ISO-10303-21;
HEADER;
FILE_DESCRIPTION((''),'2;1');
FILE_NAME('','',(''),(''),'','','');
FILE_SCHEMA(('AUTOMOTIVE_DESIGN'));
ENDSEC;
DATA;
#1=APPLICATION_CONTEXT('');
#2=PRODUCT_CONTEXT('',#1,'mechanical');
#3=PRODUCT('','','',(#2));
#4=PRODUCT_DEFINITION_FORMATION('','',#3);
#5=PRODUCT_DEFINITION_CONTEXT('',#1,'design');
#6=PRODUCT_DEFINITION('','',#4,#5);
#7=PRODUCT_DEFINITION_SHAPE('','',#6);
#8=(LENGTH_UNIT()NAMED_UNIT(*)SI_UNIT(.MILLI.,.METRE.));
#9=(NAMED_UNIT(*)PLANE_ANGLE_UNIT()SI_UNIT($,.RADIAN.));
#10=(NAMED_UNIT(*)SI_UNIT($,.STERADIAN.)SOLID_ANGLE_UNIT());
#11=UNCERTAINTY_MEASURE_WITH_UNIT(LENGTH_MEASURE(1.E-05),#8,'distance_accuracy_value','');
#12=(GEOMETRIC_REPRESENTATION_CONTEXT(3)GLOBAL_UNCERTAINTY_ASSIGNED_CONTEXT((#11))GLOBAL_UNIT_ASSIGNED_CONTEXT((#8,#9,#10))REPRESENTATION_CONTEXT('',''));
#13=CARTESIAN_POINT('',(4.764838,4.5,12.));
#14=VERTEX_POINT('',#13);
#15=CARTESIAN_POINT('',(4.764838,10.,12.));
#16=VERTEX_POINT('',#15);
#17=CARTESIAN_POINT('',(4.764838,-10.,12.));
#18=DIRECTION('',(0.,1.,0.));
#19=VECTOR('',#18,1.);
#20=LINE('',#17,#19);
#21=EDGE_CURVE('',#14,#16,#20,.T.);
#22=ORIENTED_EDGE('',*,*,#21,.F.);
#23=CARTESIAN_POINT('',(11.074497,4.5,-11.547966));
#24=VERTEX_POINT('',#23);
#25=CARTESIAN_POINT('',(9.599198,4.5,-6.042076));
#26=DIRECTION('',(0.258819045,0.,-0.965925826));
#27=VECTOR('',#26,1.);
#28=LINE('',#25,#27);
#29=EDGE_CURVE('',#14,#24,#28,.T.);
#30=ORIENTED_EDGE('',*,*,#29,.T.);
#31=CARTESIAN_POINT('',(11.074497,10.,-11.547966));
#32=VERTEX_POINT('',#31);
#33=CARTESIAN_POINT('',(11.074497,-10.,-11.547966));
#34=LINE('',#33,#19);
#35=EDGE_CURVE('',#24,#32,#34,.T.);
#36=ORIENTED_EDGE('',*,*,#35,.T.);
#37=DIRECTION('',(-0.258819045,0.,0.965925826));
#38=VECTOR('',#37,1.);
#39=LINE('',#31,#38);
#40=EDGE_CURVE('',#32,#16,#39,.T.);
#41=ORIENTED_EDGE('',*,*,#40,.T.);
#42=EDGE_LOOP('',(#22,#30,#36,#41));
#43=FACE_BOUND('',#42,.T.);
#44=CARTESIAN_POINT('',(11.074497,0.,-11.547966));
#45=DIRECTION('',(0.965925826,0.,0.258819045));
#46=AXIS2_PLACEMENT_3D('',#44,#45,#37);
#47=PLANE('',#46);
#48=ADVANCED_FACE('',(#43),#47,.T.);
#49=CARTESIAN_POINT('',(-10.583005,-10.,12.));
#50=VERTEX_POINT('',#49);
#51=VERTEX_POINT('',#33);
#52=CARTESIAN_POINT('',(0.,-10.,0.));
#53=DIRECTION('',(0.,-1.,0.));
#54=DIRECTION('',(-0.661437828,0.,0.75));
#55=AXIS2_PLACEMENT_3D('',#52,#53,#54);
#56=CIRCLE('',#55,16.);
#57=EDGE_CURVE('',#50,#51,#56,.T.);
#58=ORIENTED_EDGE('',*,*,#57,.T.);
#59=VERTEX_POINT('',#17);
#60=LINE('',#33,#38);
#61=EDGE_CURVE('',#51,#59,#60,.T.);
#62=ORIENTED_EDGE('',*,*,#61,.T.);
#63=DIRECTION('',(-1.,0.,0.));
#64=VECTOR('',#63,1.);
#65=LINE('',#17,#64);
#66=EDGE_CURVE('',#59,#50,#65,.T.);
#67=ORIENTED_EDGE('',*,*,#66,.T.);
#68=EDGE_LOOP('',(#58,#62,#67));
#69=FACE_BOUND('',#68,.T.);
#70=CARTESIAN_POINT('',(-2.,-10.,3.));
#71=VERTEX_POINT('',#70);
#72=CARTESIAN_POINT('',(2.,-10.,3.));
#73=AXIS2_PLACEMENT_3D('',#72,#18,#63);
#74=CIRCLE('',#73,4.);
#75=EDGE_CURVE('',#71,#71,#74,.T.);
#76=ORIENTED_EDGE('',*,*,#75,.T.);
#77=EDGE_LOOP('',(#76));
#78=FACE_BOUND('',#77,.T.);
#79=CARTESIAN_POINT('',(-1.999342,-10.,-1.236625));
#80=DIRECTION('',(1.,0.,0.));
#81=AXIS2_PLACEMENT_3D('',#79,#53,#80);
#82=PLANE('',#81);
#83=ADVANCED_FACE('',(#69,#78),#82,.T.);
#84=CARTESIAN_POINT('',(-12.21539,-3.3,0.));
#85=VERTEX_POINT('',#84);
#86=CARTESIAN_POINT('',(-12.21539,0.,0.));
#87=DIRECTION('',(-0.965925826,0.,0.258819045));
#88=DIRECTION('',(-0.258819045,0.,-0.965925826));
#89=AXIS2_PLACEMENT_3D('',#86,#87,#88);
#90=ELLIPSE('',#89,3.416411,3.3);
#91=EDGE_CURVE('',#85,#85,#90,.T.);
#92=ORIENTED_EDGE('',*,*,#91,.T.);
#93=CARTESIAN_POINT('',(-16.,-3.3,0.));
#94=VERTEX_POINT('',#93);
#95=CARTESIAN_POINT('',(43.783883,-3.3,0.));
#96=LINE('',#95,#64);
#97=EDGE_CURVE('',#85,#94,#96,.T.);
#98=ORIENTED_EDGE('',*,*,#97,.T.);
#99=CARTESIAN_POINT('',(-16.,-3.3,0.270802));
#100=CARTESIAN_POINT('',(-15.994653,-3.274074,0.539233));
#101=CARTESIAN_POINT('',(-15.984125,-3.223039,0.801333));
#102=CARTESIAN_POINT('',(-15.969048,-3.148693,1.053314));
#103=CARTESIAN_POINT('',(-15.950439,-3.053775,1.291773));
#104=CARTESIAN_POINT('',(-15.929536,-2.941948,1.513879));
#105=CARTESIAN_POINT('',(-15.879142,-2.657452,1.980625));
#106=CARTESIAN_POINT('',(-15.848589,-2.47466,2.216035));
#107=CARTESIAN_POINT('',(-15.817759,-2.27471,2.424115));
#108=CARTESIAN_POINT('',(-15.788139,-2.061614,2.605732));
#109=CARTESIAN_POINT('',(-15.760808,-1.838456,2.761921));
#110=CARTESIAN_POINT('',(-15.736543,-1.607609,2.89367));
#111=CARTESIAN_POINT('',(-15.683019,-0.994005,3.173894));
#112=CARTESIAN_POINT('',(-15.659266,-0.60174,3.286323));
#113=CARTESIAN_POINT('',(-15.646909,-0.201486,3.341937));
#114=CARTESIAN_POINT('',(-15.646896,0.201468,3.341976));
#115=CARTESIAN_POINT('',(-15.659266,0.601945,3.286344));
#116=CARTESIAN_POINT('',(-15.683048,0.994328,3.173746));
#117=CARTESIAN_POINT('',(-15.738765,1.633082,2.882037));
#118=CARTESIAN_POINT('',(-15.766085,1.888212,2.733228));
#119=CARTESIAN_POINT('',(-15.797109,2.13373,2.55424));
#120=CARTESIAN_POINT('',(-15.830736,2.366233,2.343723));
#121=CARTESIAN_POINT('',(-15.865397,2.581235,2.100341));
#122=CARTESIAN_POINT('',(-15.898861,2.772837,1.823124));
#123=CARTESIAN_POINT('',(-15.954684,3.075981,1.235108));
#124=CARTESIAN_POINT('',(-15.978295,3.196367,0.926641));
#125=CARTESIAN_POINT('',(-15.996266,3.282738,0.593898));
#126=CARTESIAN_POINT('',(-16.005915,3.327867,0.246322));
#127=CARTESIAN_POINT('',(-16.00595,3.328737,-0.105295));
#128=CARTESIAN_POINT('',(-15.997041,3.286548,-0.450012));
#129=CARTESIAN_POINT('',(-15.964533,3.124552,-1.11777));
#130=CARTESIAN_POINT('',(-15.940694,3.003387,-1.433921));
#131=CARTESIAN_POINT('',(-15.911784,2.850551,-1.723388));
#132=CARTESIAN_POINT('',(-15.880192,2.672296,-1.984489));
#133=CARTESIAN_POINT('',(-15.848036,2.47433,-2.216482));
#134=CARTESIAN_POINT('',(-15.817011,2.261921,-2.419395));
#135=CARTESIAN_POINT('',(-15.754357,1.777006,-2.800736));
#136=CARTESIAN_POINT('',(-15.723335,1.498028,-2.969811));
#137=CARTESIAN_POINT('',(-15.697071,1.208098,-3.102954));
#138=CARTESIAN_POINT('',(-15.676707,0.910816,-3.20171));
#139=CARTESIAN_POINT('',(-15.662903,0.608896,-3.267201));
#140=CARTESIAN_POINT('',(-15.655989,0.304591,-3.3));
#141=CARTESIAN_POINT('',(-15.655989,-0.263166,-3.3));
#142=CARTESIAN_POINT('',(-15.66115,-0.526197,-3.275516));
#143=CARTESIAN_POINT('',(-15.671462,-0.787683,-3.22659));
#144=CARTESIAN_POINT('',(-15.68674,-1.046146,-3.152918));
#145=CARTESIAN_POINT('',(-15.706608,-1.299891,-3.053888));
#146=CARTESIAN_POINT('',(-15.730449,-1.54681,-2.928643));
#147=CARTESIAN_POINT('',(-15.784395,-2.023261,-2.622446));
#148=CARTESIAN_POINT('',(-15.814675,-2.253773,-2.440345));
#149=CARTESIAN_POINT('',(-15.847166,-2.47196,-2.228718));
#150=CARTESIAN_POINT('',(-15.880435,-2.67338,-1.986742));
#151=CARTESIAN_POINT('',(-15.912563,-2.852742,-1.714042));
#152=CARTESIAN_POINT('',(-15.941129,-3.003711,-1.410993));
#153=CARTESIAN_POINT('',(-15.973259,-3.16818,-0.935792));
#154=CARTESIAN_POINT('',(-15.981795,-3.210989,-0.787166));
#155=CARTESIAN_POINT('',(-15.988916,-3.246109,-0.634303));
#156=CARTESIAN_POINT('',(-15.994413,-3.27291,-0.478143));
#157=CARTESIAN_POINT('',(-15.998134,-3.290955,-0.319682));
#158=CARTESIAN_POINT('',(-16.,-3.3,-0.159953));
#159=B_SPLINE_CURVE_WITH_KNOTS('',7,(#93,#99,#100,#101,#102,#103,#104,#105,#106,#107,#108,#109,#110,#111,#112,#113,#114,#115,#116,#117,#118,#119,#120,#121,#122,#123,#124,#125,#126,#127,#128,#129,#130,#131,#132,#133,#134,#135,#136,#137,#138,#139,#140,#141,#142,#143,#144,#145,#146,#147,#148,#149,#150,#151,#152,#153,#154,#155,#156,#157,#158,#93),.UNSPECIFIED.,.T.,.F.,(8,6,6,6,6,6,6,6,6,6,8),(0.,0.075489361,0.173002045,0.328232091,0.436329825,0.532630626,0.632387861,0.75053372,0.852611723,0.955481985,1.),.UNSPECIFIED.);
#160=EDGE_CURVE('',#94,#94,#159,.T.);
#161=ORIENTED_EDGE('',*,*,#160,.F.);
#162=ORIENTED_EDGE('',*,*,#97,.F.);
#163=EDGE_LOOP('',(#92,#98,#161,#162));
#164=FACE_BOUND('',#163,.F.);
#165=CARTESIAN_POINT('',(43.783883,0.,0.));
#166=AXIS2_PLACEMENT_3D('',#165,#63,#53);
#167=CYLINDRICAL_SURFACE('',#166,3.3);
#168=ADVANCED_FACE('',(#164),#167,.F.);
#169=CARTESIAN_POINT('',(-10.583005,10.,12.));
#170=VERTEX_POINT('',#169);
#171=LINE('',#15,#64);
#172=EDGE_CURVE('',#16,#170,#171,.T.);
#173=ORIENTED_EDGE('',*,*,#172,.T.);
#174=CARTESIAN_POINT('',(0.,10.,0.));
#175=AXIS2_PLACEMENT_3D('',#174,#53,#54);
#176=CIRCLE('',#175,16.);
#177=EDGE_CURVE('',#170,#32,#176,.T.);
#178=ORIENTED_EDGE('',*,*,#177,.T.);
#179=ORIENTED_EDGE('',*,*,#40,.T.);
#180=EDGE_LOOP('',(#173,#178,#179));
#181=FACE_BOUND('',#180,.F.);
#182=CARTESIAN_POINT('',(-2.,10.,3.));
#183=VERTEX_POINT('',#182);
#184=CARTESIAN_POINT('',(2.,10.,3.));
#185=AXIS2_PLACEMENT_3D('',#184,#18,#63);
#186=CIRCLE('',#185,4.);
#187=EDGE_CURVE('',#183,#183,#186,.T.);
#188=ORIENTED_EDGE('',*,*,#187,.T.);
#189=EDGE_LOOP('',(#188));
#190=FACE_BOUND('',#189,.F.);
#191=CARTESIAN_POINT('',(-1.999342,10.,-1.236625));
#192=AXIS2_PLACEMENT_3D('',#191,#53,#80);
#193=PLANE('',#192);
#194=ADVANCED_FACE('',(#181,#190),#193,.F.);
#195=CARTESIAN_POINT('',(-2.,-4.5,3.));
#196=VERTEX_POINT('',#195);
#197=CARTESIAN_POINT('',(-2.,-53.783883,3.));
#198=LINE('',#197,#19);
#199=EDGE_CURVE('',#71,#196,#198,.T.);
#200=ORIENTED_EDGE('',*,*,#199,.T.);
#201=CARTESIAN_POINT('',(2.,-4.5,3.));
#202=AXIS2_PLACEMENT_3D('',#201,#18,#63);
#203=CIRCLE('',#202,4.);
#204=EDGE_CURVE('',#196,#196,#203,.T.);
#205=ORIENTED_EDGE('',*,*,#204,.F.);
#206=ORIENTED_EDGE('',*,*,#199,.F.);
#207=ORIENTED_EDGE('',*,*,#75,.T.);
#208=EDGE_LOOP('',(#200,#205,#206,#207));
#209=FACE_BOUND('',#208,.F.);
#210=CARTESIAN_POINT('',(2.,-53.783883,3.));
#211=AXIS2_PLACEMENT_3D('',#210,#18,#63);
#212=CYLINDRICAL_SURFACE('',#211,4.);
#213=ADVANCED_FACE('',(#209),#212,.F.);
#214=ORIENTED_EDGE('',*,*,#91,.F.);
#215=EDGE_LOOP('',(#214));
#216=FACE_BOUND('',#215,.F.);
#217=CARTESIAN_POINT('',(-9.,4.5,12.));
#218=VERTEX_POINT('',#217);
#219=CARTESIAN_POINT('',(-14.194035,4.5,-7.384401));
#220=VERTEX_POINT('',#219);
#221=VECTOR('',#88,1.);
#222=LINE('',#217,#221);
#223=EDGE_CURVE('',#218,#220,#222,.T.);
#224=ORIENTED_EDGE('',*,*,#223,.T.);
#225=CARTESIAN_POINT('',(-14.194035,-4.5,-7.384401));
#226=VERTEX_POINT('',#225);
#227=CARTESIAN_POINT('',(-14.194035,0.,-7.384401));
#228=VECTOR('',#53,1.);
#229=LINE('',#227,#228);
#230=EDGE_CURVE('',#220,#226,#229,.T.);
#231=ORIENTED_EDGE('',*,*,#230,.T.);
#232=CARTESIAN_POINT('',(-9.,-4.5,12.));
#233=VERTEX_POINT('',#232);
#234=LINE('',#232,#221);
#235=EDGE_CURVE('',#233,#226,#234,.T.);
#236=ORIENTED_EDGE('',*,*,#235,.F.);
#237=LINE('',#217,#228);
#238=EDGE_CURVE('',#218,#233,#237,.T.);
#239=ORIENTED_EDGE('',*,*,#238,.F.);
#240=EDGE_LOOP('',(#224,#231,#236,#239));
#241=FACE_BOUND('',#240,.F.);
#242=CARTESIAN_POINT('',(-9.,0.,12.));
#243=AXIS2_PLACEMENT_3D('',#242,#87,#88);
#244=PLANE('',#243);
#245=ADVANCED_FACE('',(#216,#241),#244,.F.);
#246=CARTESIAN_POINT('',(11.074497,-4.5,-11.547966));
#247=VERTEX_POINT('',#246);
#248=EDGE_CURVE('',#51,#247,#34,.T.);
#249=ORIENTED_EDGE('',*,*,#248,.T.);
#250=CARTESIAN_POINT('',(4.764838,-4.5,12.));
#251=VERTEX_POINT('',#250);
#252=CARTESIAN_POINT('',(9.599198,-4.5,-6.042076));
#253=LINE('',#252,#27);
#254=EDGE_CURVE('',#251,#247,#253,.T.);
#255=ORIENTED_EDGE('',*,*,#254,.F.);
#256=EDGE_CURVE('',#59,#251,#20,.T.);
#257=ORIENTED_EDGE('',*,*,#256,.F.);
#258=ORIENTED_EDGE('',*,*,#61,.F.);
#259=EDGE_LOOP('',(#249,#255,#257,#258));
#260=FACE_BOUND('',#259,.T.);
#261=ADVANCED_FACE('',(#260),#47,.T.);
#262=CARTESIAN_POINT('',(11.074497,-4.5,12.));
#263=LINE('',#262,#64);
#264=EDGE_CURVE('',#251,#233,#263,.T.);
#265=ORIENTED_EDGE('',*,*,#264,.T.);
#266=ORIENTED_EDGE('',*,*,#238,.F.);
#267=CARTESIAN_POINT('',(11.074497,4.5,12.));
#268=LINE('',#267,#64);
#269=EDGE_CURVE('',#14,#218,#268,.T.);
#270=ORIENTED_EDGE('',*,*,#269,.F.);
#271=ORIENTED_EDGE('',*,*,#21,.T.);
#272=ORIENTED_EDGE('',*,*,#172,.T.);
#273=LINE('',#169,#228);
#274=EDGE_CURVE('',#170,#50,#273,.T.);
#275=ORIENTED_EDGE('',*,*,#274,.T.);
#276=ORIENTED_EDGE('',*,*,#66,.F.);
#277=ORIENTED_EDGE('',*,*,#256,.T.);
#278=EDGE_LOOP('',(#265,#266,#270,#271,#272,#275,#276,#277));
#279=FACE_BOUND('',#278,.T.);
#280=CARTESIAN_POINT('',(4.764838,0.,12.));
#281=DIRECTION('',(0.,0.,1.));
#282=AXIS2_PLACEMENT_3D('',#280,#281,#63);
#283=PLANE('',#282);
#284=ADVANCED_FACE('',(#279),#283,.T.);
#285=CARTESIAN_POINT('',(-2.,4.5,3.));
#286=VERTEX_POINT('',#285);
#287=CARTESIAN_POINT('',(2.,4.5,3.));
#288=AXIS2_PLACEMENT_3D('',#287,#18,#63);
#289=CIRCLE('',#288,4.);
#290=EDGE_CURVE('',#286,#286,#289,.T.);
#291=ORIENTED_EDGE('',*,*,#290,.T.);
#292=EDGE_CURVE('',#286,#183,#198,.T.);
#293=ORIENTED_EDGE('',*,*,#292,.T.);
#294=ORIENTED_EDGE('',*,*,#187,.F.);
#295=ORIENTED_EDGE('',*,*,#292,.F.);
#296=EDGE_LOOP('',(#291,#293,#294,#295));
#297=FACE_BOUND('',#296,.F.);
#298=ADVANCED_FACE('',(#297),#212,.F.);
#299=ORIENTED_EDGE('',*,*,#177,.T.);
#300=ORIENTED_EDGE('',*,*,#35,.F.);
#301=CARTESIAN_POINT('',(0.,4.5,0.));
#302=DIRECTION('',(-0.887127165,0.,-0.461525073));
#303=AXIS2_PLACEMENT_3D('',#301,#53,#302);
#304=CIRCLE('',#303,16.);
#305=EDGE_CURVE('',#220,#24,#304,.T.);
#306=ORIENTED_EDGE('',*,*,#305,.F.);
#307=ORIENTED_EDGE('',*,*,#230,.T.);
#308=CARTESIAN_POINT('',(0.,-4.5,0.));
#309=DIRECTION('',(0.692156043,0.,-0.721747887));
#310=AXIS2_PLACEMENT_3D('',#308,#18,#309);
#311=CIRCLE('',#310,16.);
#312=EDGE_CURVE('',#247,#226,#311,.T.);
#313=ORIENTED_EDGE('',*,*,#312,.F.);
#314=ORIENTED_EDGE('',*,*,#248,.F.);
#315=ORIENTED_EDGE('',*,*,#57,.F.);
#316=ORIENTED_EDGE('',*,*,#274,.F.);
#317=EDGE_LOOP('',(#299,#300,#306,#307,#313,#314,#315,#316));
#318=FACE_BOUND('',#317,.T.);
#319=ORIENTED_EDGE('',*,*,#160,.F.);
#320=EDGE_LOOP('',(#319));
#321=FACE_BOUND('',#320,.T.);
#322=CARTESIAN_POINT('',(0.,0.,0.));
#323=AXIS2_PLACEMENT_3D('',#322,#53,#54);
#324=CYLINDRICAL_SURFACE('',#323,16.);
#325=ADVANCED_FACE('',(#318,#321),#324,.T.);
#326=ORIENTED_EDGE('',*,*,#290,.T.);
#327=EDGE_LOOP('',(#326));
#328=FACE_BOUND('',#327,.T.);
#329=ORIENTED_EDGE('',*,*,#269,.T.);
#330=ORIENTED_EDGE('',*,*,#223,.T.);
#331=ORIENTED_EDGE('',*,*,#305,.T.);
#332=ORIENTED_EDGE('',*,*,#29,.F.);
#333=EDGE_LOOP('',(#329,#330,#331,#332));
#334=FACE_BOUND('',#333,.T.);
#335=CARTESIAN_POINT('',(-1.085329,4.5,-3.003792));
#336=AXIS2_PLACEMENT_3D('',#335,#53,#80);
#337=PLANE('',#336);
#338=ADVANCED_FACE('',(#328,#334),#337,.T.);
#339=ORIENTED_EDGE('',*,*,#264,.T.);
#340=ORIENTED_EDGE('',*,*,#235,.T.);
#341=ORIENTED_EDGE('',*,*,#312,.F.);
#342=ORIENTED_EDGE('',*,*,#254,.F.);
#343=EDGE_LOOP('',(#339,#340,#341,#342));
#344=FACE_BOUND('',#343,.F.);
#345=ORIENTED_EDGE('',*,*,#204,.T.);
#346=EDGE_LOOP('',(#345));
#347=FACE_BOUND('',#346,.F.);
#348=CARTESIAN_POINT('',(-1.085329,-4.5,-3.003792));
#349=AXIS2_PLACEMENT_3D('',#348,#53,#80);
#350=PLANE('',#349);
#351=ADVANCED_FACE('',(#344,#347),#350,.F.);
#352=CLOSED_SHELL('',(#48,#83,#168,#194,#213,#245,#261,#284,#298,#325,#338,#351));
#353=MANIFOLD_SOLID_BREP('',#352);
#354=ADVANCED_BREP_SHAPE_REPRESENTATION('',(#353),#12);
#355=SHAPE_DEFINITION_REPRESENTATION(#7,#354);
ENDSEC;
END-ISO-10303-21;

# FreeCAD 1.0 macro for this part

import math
import FreeCAD as App
import Part
import Sketcher
from FreeCAD import Vector
Q = App.Units.Quantity


def add_polygon(sketch, points):
    """Adds a closed chain of lines whose ends are joined by coincident constraints."""
    first, n = sketch.GeometryCount, len(points)
    for a, b in zip(points, points[1:] + points[:1]):
        sketch.addGeometry(Part.LineSegment(App.Vector(*a, 0), App.Vector(*b, 0)), False)
    for i in range(n):
        sketch.addConstraint(Sketcher.Constraint("Coincident", first + i, 2, first + (i + 1) % n, 1))

doc = App.newDocument("Part")
body = doc.addObject("PartDesign::Body", "Body")

sketch1 = body.newObject("Sketcher::SketchObject", "Sketch")
sketch1.AttachmentSupport = (doc.getObject("XZ_Plane"), [""])
sketch1.MapMode = "FlatFace"
sketch1.addGeometry([
    Part.LineSegment(Vector(5, 12, 0), Vector(-11, 12, 0)),
    Part.ArcOfCircle(Part.Circle(Vector(0, 0, 0), Vector(0, 0, 1), 16), math.radians(131), math.radians(314)),
    Part.LineSegment(Vector(11, -12, 0), Vector(5, 12, 0)),
], False)
sketch1.addConstraint([
    Sketcher.Constraint("Coincident", 0, 2, 1, 1),
    Sketcher.Constraint("Coincident", 1, 2, 2, 1),
    Sketcher.Constraint("Coincident", 2, 2, 0, 1),
    Sketcher.Constraint("Horizontal", 0),
    Sketcher.Constraint("Coincident", 1, 3, -1, 1),
    Sketcher.Constraint("Radius", 1, 16.0),
    Sketcher.Constraint("Angle", 2, Q("105 deg")),
    Sketcher.Constraint("DistanceY", -1, 1, 0, 2, 12.0),
    Sketcher.Constraint("DistanceX", 0, 2, 1, 2, 21.657502),
])
pad1 = body.newObject("PartDesign::Pad", "Pad")
pad1.Profile = sketch1
pad1.Length = 20
pad1.Midplane = True

sketch2 = body.newObject("Sketcher::SketchObject", "Sketch001")
sketch2.AttachmentSupport = (doc.getObject("XZ_Plane"), [""])
sketch2.MapMode = "FlatFace"
add_polygon(sketch2, [(11, 12), (-9, 12), (-17, -16), (11, -16)])
sketch2.addConstraint([
    Sketcher.Constraint("Horizontal", 0),
    Sketcher.Constraint("Horizontal", 2),
    Sketcher.Constraint("Vertical", 3),
    Sketcher.Constraint("DistanceY", 3, 1, 3, 2, 28.0),
    Sketcher.Constraint("Angle", 1, Q("-105 deg")),
    Sketcher.Constraint("DistanceX", 0, 2, -1, 1, 9.0),
    Sketcher.Constraint("DistanceY", -1, 1, 0, 2, 12.0),
    Sketcher.Constraint("DistanceX", 0, 2, 0, 1, 20.074497),
])
pocket1 = body.newObject("PartDesign::Pocket", "Pocket")
pocket1.Profile = sketch2
pocket1.Length = 9
pocket1.Midplane = True

sketch3 = body.newObject("Sketcher::SketchObject", "Sketch002")
sketch3.AttachmentSupport = (doc.getObject("XZ_Plane"), [""])
sketch3.MapMode = "FlatFace"
sketch3.AttachmentOffset = App.Placement(Vector(0, 0, 10), App.Rotation())
sketch3.addGeometry(Part.Circle(Vector(2, 3, 0), Vector(0, 0, 1), 4), False)
sketch3.addConstraint([
    Sketcher.Constraint("Diameter", 0, 8.0),
    Sketcher.Constraint("DistanceX", -1, 1, 0, 3, 2.0),
    Sketcher.Constraint("DistanceY", -1, 1, 0, 3, 3.0),
])
doc.recompute()
hole = body.newObject("PartDesign::Hole", "Hole")
hole.Profile = sketch3
hole.ThreadType = "None"
hole.Diameter = 8
hole.DepthType = "ThroughAll"

sketch4 = body.newObject("Sketcher::SketchObject", "Sketch003")
sketch4.AttachmentSupport = (doc.getObject("YZ_Plane"), [""])
sketch4.MapMode = "FlatFace"
sketch4.addGeometry(Part.Circle(Vector(0, 0, 0), Vector(0, 0, 1), 3.3), False)
sketch4.addConstraint([
    Sketcher.Constraint("Coincident", 0, 3, -1, 1),
    Sketcher.Constraint("Diameter", 0, 6.6),
])
doc.recompute()
hole2 = body.newObject("PartDesign::Hole", "Hole001")
hole2.Profile = sketch4
hole2.ThreadType = "None"
hole2.Diameter = 6.6
hole2.DepthType = "ThroughAll"

doc.recompute()
